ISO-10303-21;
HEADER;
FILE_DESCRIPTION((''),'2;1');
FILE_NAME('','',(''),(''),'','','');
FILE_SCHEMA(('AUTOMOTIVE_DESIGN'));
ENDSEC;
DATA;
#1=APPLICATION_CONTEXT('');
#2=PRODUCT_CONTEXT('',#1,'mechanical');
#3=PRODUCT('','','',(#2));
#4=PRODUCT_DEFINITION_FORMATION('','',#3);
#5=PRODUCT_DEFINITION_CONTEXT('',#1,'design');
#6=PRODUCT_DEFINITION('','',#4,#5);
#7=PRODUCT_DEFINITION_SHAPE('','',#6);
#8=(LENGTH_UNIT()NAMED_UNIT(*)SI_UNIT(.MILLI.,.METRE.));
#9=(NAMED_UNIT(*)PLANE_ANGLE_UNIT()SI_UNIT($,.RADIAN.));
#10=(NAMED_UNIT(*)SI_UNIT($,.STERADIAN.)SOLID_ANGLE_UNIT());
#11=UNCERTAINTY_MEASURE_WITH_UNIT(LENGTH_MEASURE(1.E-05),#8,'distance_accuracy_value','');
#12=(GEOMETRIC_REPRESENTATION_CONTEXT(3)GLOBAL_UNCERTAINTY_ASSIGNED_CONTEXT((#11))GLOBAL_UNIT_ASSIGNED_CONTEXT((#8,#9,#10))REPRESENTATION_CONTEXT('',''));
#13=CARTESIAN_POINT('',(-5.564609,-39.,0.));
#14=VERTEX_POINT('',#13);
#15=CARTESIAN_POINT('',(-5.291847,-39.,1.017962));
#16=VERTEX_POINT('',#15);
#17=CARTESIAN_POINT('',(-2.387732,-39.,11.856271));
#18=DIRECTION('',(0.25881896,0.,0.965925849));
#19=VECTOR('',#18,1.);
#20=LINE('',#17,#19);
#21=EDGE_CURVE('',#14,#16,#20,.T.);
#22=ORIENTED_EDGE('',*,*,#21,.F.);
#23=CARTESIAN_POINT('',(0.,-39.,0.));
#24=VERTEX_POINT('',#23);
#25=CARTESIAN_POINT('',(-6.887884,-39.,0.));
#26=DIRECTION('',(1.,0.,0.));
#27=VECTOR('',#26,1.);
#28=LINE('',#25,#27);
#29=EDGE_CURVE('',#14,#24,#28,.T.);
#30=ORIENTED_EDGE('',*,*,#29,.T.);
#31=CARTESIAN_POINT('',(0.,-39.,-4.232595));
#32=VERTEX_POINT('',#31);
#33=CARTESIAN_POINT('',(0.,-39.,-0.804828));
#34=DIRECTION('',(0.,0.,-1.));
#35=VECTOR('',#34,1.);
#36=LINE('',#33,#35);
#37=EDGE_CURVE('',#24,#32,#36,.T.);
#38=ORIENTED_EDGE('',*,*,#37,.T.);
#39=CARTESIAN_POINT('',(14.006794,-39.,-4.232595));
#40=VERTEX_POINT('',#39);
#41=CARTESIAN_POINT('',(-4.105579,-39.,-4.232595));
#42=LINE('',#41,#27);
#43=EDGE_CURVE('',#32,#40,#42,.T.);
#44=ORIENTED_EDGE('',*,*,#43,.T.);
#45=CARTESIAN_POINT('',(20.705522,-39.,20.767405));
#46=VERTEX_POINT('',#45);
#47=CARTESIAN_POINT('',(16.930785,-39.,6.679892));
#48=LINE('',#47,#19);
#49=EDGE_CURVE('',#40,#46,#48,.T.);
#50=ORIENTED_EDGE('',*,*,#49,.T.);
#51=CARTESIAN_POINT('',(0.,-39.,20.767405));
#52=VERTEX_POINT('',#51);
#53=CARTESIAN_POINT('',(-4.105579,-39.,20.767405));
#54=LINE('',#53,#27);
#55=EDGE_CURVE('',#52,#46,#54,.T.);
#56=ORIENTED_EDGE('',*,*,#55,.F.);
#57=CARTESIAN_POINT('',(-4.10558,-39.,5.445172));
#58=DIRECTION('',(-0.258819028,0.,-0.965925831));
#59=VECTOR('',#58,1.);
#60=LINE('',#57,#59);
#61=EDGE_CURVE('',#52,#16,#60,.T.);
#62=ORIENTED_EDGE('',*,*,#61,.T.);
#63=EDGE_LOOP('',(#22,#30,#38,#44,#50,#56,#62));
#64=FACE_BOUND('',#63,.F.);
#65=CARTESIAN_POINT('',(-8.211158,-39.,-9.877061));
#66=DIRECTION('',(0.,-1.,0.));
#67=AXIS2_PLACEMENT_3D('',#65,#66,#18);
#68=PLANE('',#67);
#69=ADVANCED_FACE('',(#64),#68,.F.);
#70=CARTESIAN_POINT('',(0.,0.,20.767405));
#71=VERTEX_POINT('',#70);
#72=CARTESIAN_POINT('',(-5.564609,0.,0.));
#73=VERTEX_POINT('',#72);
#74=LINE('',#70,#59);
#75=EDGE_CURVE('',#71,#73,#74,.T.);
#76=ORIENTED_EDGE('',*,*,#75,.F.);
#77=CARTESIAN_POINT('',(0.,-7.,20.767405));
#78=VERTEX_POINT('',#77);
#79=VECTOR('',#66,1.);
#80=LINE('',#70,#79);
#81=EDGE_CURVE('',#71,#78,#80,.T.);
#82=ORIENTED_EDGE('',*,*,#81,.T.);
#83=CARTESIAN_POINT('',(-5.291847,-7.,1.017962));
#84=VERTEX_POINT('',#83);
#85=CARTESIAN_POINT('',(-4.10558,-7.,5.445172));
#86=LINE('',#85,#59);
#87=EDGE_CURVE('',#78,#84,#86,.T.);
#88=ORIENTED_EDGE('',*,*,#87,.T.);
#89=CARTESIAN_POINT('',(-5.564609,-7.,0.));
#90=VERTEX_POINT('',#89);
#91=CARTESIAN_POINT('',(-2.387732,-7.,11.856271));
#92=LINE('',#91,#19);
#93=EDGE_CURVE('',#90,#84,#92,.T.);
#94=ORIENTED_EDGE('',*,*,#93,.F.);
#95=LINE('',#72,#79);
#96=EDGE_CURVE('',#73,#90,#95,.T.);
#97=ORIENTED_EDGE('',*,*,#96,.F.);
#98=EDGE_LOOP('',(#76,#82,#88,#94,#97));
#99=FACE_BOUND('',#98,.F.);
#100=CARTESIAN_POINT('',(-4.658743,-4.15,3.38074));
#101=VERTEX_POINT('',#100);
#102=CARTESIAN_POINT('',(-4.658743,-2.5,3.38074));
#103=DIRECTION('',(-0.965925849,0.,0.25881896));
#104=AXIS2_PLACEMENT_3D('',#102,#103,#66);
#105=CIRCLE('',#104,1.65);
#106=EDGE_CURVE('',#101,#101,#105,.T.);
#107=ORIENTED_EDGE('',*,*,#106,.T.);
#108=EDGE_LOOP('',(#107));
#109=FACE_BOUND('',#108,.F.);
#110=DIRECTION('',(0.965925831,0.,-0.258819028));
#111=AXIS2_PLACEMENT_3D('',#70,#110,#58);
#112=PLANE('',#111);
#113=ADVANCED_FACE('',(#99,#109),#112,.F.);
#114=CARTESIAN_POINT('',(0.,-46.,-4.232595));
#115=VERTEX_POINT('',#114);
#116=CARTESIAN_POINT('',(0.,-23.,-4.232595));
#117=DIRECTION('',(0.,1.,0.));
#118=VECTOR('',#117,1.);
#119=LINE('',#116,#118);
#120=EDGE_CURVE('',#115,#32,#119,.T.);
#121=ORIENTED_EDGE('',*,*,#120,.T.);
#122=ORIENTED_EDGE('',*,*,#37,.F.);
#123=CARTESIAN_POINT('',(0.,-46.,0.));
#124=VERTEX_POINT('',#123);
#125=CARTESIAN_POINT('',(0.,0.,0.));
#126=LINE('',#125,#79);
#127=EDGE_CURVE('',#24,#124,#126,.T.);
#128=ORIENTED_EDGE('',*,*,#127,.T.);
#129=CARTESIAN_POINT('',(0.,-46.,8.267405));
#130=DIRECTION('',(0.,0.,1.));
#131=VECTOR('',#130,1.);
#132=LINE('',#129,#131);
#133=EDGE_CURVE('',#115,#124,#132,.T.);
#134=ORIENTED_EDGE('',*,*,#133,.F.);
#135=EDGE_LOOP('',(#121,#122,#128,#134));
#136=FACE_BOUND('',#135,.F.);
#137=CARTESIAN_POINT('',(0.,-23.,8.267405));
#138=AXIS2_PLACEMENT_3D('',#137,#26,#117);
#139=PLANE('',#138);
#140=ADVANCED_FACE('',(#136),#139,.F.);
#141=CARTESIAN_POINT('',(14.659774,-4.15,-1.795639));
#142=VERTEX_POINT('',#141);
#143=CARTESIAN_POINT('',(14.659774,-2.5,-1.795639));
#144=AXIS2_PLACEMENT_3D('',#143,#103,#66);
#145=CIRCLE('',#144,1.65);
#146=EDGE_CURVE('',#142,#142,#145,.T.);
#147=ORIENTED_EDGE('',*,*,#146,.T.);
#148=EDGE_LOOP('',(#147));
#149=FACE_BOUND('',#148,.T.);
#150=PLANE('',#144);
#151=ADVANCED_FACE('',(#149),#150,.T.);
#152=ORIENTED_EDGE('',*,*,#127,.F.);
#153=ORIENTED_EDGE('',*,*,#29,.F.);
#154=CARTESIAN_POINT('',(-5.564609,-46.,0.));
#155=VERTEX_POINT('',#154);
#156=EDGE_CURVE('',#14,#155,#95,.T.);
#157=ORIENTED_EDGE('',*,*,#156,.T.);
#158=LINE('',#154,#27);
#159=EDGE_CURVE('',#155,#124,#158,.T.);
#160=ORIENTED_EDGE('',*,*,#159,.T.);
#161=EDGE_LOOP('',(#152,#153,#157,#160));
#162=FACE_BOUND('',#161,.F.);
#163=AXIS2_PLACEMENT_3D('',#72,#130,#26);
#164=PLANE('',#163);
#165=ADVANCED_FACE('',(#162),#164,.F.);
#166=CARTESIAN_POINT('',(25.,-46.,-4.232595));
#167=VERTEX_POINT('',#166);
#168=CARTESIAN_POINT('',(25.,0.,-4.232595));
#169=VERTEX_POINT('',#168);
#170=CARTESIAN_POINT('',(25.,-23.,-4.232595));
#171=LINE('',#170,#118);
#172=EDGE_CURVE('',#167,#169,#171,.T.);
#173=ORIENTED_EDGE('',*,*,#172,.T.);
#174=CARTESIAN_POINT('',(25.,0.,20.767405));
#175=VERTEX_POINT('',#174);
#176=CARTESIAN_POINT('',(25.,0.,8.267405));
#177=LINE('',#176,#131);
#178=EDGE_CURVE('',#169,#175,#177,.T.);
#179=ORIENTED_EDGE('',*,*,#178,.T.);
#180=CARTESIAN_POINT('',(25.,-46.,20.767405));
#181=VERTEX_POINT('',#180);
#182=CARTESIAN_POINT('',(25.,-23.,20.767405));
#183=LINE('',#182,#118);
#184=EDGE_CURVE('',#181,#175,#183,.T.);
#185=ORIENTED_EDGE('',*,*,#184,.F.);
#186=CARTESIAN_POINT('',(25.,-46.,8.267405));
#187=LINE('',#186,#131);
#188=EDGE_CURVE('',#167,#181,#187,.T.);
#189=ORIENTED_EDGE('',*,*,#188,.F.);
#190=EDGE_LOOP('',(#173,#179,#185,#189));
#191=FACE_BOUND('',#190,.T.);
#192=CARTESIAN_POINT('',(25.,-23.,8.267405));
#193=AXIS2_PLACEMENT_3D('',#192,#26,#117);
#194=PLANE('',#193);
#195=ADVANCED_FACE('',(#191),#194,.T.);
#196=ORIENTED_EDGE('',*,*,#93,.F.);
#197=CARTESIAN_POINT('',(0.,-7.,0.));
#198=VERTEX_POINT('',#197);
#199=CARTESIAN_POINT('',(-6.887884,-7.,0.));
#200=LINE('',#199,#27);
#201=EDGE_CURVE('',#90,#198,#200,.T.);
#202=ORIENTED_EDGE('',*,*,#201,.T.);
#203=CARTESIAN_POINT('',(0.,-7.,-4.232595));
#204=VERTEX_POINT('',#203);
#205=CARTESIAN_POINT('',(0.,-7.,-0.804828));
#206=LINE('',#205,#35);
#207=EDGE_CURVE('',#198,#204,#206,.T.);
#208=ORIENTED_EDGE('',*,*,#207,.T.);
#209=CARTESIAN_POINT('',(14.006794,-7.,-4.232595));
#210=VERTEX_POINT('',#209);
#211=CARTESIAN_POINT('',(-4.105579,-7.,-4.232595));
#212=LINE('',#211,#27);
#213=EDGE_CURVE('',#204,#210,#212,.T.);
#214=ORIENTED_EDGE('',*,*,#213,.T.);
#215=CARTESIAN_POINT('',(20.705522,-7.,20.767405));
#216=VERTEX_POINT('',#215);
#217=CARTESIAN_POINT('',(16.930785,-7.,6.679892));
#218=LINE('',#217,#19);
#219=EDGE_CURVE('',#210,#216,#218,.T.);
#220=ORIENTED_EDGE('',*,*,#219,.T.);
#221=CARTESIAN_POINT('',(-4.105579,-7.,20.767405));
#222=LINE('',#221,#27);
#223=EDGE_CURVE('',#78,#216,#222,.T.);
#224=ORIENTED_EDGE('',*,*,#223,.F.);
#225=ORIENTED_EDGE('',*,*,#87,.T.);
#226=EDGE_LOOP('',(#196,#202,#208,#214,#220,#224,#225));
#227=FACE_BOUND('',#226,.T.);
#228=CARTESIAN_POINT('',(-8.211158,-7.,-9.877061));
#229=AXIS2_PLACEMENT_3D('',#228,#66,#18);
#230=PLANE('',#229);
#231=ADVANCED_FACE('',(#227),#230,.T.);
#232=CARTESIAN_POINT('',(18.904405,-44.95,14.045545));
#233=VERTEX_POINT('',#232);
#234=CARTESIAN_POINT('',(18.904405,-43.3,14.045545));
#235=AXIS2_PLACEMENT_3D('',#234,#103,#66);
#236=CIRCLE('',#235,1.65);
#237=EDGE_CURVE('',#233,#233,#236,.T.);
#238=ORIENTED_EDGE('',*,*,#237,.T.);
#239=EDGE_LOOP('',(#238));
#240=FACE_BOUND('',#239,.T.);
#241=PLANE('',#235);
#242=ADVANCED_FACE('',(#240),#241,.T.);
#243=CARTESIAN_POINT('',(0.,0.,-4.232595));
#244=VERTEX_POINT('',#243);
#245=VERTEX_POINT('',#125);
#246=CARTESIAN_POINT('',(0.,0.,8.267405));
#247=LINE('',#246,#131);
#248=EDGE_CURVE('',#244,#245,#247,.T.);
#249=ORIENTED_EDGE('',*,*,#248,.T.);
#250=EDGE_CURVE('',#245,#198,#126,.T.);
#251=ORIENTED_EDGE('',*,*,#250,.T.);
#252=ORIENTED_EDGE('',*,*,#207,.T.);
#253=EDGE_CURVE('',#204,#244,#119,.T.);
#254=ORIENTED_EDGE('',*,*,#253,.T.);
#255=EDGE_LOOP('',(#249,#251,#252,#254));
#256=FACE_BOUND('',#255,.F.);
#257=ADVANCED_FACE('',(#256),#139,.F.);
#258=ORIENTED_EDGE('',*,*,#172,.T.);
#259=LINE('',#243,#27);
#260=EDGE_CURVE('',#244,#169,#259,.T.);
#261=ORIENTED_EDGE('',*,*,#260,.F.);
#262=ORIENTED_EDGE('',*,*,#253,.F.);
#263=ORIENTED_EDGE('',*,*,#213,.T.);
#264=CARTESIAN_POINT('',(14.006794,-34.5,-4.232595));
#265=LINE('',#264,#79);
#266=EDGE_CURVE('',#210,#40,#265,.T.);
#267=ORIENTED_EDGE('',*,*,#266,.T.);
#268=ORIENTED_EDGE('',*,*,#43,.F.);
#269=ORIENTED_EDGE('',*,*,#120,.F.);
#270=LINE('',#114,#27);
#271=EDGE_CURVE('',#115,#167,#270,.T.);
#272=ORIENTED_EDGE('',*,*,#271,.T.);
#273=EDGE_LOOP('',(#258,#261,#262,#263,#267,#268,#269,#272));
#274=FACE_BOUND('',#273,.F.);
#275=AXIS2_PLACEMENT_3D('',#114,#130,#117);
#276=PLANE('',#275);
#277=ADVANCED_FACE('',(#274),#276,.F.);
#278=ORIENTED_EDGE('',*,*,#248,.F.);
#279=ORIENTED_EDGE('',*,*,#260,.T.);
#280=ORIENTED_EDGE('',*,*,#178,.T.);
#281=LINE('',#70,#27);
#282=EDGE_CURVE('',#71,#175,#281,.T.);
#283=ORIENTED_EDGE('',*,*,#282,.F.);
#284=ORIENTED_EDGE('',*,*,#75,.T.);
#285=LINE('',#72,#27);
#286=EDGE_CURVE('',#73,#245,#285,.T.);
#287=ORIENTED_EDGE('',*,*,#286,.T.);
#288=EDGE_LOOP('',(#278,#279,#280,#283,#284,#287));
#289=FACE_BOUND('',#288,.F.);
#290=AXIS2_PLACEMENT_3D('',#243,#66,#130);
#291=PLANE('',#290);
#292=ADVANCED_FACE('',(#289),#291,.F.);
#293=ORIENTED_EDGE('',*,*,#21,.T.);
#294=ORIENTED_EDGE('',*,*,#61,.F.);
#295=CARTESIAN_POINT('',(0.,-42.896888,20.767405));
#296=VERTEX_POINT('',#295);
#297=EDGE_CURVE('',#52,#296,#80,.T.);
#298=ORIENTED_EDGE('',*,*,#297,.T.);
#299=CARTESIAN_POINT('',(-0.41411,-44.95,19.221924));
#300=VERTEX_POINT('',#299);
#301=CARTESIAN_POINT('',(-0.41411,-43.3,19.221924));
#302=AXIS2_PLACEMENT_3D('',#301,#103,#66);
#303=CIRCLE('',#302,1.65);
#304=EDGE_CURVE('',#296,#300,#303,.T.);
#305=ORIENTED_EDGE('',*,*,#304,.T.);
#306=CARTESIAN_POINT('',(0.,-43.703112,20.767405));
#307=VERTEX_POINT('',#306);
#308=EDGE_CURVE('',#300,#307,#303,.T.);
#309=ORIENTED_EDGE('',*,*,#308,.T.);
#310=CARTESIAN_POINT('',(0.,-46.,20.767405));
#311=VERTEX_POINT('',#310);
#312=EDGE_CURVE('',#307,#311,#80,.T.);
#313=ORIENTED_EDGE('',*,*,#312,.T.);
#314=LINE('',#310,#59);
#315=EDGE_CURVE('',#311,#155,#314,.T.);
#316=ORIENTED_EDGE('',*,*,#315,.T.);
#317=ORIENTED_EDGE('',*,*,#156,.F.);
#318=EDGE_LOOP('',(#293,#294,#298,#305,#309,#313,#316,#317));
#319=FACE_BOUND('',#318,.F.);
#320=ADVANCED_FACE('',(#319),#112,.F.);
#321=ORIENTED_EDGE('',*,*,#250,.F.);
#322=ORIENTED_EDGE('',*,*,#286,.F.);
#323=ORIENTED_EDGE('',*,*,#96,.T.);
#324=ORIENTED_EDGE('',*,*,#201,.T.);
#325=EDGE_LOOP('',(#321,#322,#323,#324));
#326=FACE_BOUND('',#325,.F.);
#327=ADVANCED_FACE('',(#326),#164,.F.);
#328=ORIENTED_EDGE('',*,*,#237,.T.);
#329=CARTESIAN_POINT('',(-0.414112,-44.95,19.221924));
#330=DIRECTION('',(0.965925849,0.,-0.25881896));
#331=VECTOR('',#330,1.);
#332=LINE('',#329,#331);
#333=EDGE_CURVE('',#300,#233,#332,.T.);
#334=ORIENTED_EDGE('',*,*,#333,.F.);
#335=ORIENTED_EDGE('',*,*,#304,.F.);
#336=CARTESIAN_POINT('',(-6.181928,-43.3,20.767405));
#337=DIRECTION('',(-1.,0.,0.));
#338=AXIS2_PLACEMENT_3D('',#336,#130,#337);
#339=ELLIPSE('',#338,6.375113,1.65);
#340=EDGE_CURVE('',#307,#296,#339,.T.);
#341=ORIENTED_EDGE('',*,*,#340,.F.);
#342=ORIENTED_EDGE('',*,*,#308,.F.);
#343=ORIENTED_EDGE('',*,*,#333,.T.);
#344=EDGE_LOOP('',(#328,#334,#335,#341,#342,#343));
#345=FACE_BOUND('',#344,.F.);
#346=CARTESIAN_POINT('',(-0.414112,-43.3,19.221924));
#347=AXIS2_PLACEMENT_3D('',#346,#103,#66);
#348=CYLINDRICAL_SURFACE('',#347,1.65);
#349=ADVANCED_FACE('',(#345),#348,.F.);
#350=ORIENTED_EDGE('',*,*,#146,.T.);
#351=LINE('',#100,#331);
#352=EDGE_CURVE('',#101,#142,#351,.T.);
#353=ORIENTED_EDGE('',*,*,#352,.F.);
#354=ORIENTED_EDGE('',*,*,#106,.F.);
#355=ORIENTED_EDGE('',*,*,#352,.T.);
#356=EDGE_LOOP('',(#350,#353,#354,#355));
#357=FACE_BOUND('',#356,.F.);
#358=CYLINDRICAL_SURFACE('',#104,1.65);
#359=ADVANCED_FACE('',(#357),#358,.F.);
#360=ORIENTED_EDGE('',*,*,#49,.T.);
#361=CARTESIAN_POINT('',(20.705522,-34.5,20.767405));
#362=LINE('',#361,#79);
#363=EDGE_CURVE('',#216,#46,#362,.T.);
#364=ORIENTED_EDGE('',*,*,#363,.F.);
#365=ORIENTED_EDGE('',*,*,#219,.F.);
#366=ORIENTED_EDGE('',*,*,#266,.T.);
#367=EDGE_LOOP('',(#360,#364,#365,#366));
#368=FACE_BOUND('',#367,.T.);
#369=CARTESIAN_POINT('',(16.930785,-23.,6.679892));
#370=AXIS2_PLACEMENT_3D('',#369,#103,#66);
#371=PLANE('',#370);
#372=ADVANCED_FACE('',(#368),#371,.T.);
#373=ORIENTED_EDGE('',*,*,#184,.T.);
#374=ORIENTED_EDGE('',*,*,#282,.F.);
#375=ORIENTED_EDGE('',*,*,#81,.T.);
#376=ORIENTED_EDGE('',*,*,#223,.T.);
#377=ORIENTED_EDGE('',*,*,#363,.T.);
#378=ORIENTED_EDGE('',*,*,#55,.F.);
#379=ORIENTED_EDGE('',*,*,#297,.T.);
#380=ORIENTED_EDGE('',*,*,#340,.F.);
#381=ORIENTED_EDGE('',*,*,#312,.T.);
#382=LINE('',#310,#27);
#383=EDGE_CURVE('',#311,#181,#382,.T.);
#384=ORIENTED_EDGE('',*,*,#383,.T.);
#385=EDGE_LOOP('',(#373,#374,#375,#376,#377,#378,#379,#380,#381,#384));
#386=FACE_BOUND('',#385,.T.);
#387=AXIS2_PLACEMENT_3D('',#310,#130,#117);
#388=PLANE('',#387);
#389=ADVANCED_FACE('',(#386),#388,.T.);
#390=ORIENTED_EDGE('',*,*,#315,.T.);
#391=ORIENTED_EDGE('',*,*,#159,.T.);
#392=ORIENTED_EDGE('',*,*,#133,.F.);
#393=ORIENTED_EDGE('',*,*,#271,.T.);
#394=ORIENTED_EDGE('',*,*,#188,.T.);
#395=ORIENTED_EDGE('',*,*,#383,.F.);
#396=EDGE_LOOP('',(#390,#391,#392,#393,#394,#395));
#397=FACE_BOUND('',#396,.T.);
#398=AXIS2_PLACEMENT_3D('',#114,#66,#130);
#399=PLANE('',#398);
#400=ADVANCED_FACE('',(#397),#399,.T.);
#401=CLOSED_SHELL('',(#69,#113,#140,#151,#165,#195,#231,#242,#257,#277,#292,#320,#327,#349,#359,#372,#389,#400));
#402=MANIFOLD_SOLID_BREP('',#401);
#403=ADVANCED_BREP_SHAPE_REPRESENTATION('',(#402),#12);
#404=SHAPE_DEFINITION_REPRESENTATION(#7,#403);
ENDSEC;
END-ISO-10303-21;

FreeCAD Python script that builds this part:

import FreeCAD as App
import Part
import Sketcher
from FreeCAD import Vector
Q = App.Units.Quantity

doc = App.newDocument("Part")
body = doc.addObject("PartDesign::Body", "Body")

# Sketch on XZ plane
sketch1 = body.newObject("Sketcher::SketchObject", "Sketch")
sketch1.AttachmentSupport = (doc.getObject("XZ_Plane"), [""])
sketch1.MapMode = "FlatFace"
sketch1.addGeometry(Part.LineSegment(Vector(-6, 0, 0), Vector(0, 0, 0)), False)
sketch1.addGeometry(Part.LineSegment(Vector(0, 0, 0), Vector(0, 21, 0)), False)
sketch1.addGeometry(Part.LineSegment(Vector(0, 21, 0), Vector(-6, 0, 0)), False)
sketch1.addConstraint(Sketcher.Constraint("Coincident", 0, 2, 1, 1))
sketch1.addConstraint(Sketcher.Constraint("Coincident", 1, 2, 2, 1))
sketch1.addConstraint(Sketcher.Constraint("Coincident", 2, 2, 0, 1))
sketch1.addConstraint(Sketcher.Constraint("Horizontal", 0))
sketch1.addConstraint(Sketcher.Constraint("Vertical", 1))
sketch1.addConstraint(Sketcher.Constraint("Coincident", 0, 2, -1, 1))
sketch1.addConstraint(Sketcher.Constraint("Angle", 2, Q("-104.999999 deg")))
sketch1.addConstraint(Sketcher.Constraint("Distance", 2, Q("21.5 mm")))
pad1 = body.newObject("PartDesign::Pad", "Pad")
pad1.Profile = sketch1
pad1.Length = 46

# Sketch on YZ plane
sketch2 = body.newObject("Sketcher::SketchObject", "Sketch001")
sketch2.AttachmentSupport = (doc.getObject("YZ_Plane"), [""])
sketch2.MapMode = "FlatFace"
sketch2.addGeometry(Part.LineSegment(Vector(-46, 21, 0), Vector(-46, -4, 0)), False)
sketch2.addGeometry(Part.LineSegment(Vector(-46, -4, 0), Vector(0, -4, 0)), False)
sketch2.addGeometry(Part.LineSegment(Vector(0, -4, 0), Vector(0, 21, 0)), False)
sketch2.addGeometry(Part.LineSegment(Vector(0, 21, 0), Vector(-46, 21, 0)), False)
sketch2.addConstraint(Sketcher.Constraint("Coincident", 0, 2, 1, 1))
sketch2.addConstraint(Sketcher.Constraint("Coincident", 1, 2, 2, 1))
sketch2.addConstraint(Sketcher.Constraint("Coincident", 2, 2, 3, 1))
sketch2.addConstraint(Sketcher.Constraint("Coincident", 3, 2, 0, 1))
sketch2.addConstraint(Sketcher.Constraint("Vertical", 0))
sketch2.addConstraint(Sketcher.Constraint("Horizontal", 1))
sketch2.addConstraint(Sketcher.Constraint("Vertical", 2))
sketch2.addConstraint(Sketcher.Constraint("Horizontal", 3))
sketch2.addConstraint(Sketcher.Constraint("PointOnObject", 1, 2, -2))
sketch2.addConstraint(Sketcher.Constraint("DistanceX", 1, 1, 1, 2, Q("46 mm")))
sketch2.addConstraint(Sketcher.Constraint("DistanceY", 0, 2, 0, 1, Q("25 mm")))
sketch2.addConstraint(Sketcher.Constraint("DistanceY", 0, 2, -1, 1, Q("4.232595 mm")))
pad2 = body.newObject("PartDesign::Pad", "Pad001")
pad2.Profile = sketch2
pad2.Length = 25

# Sketch on an angled plane
sketch3 = body.newObject("Sketcher::SketchObject", "Sketch002")
sketch3.Placement = App.Placement(Vector(-5.191851, 0, 1.391152), App.Rotation(Vector(0, -1, 0), Vector(0.25881896, 0, 0.965925849), Vector(-0.965925849, 0, 0.25881896), "ZXY"))
sketch3.addGeometry(Part.LineSegment(Vector(7, 33, 0), Vector(7, -12, 0)), False)
sketch3.addGeometry(Part.LineSegment(Vector(7, -12, 0), Vector(39, -12, 0)), False)
sketch3.addGeometry(Part.LineSegment(Vector(39, -12, 0), Vector(39, 33, 0)), False)
sketch3.addGeometry(Part.LineSegment(Vector(39, 33, 0), Vector(7, 33, 0)), False)
sketch3.addConstraint(Sketcher.Constraint("Coincident", 0, 2, 1, 1))
sketch3.addConstraint(Sketcher.Constraint("Coincident", 1, 2, 2, 1))
sketch3.addConstraint(Sketcher.Constraint("Coincident", 2, 2, 3, 1))
sketch3.addConstraint(Sketcher.Constraint("Coincident", 3, 2, 0, 1))
sketch3.addConstraint(Sketcher.Constraint("Vertical", 0))
sketch3.addConstraint(Sketcher.Constraint("Horizontal", 1))
sketch3.addConstraint(Sketcher.Constraint("Vertical", 2))
sketch3.addConstraint(Sketcher.Constraint("Horizontal", 3))
sketch3.addConstraint(Sketcher.Constraint("DistanceX", 1, 1, 1, 2, Q("32 mm")))
sketch3.addConstraint(Sketcher.Constraint("DistanceY", 0, 2, 0, 1, Q("45 mm")))
sketch3.addConstraint(Sketcher.Constraint("DistanceX", -1, 1, 0, 2, Q("7 mm")))
sketch3.addConstraint(Sketcher.Constraint("DistanceY", 0, 2, -1, 1, Q("11.665712 mm")))
pocket1 = body.newObject("PartDesign::Pocket", "Pocket")
pocket1.Profile = sketch3
pocket1.Length = 20

# Sketch on an angled plane
sketch4 = body.newObject("Sketcher::SketchObject", "Sketch003")
sketch4.Placement = App.Placement(Vector(-5.191851, 0, 1.391152), App.Rotation(Vector(0, -1, 0), Vector(0.25881896, 0, 0.965925849), Vector(-0.965925849, 0, 0.25881896), "ZXY"))
sketch4.addGeometry(Part.Circle(Vector(2.5, 2.1, 0), Vector(0, 0, 1), 1.6), False)
sketch4.addGeometry(Part.Circle(Vector(43.3, 18.5, 0), Vector(0, 0, 1), 1.6), False)
sketch4.addConstraint(Sketcher.Constraint("Equal", 0, 1))
sketch4.addConstraint(Sketcher.Constraint("Diameter", 0, Q("3.3 mm")))
sketch4.addConstraint(Sketcher.Constraint("DistanceX", -1, 1, 0, 3, Q("2.5 mm")))
sketch4.addConstraint(Sketcher.Constraint("DistanceX", -1, 1, 1, 3, Q("43.3 mm")))
sketch4.addConstraint(Sketcher.Constraint("DistanceY", 0, 3, 1, 3, Q("16.4 mm")))
sketch4.addConstraint(Sketcher.Constraint("DistanceY", -1, 1, 0, 3, Q("2.059773 mm")))
pocket2 = body.newObject("PartDesign::Pocket", "Pocket001")
pocket2.Profile = sketch4
pocket2.Length = 20

doc.recompute()
